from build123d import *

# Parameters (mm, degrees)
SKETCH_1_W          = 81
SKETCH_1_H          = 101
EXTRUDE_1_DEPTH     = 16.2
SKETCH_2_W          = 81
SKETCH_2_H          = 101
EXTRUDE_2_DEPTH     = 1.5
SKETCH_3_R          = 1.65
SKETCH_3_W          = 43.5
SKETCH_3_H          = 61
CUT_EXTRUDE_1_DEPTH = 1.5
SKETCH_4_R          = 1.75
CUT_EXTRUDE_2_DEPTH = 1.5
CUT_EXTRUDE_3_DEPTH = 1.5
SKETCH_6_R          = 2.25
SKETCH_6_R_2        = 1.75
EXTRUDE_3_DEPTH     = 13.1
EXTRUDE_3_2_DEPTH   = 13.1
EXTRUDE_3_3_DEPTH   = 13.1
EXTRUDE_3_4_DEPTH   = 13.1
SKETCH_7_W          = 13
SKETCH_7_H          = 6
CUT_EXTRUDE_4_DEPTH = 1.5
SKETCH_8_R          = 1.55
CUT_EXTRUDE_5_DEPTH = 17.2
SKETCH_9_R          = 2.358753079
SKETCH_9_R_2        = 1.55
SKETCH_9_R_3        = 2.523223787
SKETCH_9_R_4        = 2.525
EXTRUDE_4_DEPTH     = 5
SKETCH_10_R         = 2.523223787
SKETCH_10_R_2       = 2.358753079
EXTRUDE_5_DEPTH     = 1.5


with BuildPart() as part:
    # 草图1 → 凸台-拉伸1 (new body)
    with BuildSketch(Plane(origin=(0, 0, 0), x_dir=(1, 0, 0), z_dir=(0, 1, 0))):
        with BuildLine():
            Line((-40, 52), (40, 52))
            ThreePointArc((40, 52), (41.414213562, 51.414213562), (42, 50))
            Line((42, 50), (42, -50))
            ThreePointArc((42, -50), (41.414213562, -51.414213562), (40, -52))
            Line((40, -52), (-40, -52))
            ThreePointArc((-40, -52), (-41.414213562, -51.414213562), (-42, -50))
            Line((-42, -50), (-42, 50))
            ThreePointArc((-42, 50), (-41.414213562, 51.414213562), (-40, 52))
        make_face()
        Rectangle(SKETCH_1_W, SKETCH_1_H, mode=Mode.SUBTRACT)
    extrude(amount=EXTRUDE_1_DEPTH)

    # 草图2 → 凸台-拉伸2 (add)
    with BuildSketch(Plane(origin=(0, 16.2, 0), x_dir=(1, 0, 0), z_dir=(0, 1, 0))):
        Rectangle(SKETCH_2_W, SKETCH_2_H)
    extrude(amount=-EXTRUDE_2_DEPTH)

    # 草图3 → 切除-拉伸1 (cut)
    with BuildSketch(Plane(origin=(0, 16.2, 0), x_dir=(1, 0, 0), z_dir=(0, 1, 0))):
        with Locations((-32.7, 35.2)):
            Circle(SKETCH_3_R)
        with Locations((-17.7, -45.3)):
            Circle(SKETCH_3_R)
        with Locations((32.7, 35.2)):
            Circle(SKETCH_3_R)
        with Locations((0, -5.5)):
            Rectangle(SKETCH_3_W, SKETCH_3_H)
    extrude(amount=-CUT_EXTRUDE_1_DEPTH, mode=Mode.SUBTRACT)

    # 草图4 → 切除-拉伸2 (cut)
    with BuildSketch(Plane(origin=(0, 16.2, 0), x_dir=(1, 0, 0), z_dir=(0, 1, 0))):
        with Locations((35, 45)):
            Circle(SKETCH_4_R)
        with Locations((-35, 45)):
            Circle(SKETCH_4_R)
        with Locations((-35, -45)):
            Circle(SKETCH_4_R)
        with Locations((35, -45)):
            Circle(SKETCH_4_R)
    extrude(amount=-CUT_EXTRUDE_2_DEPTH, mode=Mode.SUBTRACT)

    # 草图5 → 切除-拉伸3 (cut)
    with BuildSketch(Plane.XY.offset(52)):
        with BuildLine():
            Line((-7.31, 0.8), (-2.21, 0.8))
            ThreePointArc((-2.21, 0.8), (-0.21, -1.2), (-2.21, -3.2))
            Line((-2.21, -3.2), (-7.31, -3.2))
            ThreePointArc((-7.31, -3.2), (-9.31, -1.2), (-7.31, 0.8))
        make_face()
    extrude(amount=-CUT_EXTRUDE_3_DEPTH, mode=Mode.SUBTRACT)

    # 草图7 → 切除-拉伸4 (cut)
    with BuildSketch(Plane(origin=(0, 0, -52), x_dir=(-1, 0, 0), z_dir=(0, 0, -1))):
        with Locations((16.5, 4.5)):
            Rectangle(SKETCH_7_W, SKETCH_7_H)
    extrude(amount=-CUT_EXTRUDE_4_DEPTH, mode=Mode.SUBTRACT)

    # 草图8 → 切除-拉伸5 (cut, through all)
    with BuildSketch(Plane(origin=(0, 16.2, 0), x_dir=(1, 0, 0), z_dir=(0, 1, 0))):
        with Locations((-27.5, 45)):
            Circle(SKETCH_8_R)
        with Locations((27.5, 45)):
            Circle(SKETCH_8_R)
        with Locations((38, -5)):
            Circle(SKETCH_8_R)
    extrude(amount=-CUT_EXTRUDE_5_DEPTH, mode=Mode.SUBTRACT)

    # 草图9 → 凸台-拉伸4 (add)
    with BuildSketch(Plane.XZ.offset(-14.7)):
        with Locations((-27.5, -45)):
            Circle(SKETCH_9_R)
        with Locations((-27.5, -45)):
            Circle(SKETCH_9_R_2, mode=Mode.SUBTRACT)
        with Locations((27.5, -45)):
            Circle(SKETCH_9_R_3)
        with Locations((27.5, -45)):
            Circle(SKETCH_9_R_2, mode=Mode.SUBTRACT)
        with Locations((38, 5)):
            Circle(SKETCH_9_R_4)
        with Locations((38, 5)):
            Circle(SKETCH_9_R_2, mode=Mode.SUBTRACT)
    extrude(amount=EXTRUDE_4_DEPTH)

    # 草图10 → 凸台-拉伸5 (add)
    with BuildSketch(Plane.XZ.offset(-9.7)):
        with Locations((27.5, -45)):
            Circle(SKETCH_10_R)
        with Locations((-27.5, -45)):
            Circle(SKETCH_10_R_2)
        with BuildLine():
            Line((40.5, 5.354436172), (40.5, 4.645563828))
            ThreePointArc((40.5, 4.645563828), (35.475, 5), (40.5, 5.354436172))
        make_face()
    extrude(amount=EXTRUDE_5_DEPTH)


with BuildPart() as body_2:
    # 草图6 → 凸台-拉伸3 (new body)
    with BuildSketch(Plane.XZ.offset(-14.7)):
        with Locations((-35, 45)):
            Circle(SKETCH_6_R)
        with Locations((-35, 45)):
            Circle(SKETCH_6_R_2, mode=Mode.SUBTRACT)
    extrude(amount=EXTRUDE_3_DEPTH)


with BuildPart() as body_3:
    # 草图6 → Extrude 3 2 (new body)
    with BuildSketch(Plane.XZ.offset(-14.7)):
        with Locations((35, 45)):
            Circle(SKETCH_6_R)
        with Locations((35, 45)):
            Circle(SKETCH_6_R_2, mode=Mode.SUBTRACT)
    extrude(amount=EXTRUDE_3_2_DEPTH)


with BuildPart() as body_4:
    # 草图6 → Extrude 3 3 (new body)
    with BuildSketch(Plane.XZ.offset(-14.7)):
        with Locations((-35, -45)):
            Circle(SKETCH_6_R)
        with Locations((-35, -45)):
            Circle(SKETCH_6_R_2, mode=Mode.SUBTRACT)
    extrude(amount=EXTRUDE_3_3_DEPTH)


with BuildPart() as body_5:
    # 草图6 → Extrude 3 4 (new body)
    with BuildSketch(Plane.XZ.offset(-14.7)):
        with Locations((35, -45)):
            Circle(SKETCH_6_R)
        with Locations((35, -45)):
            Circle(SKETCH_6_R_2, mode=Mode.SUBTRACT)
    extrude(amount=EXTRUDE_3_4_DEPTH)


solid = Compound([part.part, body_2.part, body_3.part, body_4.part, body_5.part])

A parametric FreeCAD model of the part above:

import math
import FreeCAD as App
import Part
import Sketcher
Q = App.Units.Quantity


def add_polygon(sketch, points):
    """Adds a closed chain of lines whose ends are joined by coincident constraints."""
    first, n = sketch.GeometryCount, len(points)
    for a, b in zip(points, points[1:] + points[:1]):
        sketch.addGeometry(Part.LineSegment(App.Vector(*a, 0), App.Vector(*b, 0)), False)
    for i in range(n):
        sketch.addConstraint(Sketcher.Constraint("Coincident", first + i, 2, first + (i + 1) % n, 1))

doc = App.newDocument("Part")
body = doc.addObject("PartDesign::Body", "Body")

# Sketch on XZ plane
sketch1 = body.newObject("Sketcher::SketchObject", "Sketch")
sketch1.AttachmentSupport = (doc.getObject("XZ_Plane"), [""])
sketch1.MapMode = "FlatFace"
sketch1.addGeometry(Part.LineSegment(App.Vector(40, -52, 0), App.Vector(-40, -52, 0)), False)  # 0
sketch1.addGeometry(Part.ArcOfCircle(Part.Circle(App.Vector(-40, -50, 0), App.Vector(0, 0, 1), 2), math.radians(-180), math.radians(-90)), False)  # 1
sketch1.addGeometry(Part.LineSegment(App.Vector(-42, -50, 0), App.Vector(-42, 50, 0)), False)  # 2
sketch1.addGeometry(Part.ArcOfCircle(Part.Circle(App.Vector(-40, 50, 0), App.Vector(0, 0, 1), 2), math.radians(90), math.radians(180)), False)  # 3
sketch1.addGeometry(Part.LineSegment(App.Vector(-40, 52, 0), App.Vector(40, 52, 0)), False)  # 4
sketch1.addGeometry(Part.ArcOfCircle(Part.Circle(App.Vector(40, 50, 0), App.Vector(0, 0, 1), 2), math.radians(0), math.radians(90)), False)  # 5
sketch1.addGeometry(Part.LineSegment(App.Vector(42, 50, 0), App.Vector(42, -50, 0)), False)  # 6
sketch1.addGeometry(Part.ArcOfCircle(Part.Circle(App.Vector(40, -50, 0), App.Vector(0, 0, 1), 2), math.radians(-90), math.radians(0)), False)  # 7
add_polygon(sketch1, [(-40.5, 50.5), (-40.5, -50.5), (40.5, -50.5), (40.5, 50.5)])  # lines 8-11
sketch1.addConstraint([
    Sketcher.Constraint("Tangent", 0, 2, 1, 2),
    Sketcher.Constraint("Tangent", 1, 1, 2, 1),
    Sketcher.Constraint("Tangent", 2, 2, 3, 2),
    Sketcher.Constraint("Tangent", 3, 1, 4, 1),
    Sketcher.Constraint("Tangent", 4, 2, 5, 2),
    Sketcher.Constraint("Tangent", 5, 1, 6, 1),
    Sketcher.Constraint("Tangent", 6, 2, 7, 2),
    Sketcher.Constraint("Tangent", 7, 1, 0, 1),
    Sketcher.Constraint("Horizontal", 0),
    Sketcher.Constraint("Vertical", 2),
    Sketcher.Constraint("Horizontal", 4),
    Sketcher.Constraint("Vertical", 6),
    Sketcher.Constraint("Vertical", 8),
    Sketcher.Constraint("Horizontal", 9),
    Sketcher.Constraint("Vertical", 10),
    Sketcher.Constraint("Horizontal", 11),
    Sketcher.Constraint("Equal", 1, 3),
    Sketcher.Constraint("Equal", 3, 5),
    Sketcher.Constraint("Equal", 5, 7),
    Sketcher.Constraint("Symmetric", 1, 3, 5, 3, -1, 1),
    Sketcher.Constraint("Symmetric", 8, 2, 10, 2, -1, 1),
    Sketcher.Constraint("Radius", 1, Q("2 mm")),
    Sketcher.Constraint("DistanceX", 0, 2, 0, 1, Q("80 mm")),
    Sketcher.Constraint("DistanceX", 9, 1, 9, 2, Q("81 mm")),
    Sketcher.Constraint("DistanceY", 2, 1, 2, 2, Q("100 mm")),
    Sketcher.Constraint("DistanceY", 8, 2, 8, 1, Q("101 mm")),
])
pad1 = body.newObject("PartDesign::Pad", "Pad")
pad1.Profile = sketch1
pad1.Length = 16.2
pad1.Reversed = True

# Sketch on XZ plane
sketch2 = body.newObject("Sketcher::SketchObject", "Sketch001")
sketch2.AttachmentSupport = (doc.getObject("XZ_Plane"), [""])
sketch2.MapMode = "FlatFace"
sketch2.AttachmentOffset = App.Placement(App.Vector(0, 0, -16.2), App.Rotation())
add_polygon(sketch2, [(-40, -50), (-40, 50), (40, 50), (40, -50)])  # lines 0-3
sketch2.addConstraint([
    Sketcher.Constraint("Vertical", 0),
    Sketcher.Constraint("Horizontal", 1),
    Sketcher.Constraint("Vertical", 2),
    Sketcher.Constraint("Horizontal", 3),
    Sketcher.Constraint("Symmetric", 0, 2, 2, 2, -1, 1),
    Sketcher.Constraint("DistanceX", 1, 1, 1, 2, Q("81 mm")),
    Sketcher.Constraint("DistanceY", 0, 1, 0, 2, Q("101 mm")),
])
pad2 = body.newObject("PartDesign::Pad", "Pad001")
pad2.Profile = sketch2
pad2.Length = 1.5

# Sketch on XZ plane
sketch3 = body.newObject("Sketcher::SketchObject", "Sketch002")
sketch3.AttachmentSupport = (doc.getObject("XZ_Plane"), [""])
sketch3.MapMode = "FlatFace"
sketch3.AttachmentOffset = App.Placement(App.Vector(0, 0, -16.2), App.Rotation())
sketch3.addGeometry(Part.Circle(App.Vector(-32.7, -35.2, 0), App.Vector(0, 0, 1), 1.6), False)  # 0
sketch3.addGeometry(Part.Circle(App.Vector(-17.7, 45.3, 0), App.Vector(0, 0, 1), 1.6), False)  # 1
sketch3.addGeometry(Part.Circle(App.Vector(32.7, -35.2, 0), App.Vector(0, 0, 1), 1.6), False)  # 2
add_polygon(sketch3, [(-21.8, -25), (-21.8, 36), (21.8, 36), (21.8, -25)])  # lines 3-6
sketch3.addConstraint([
    Sketcher.Constraint("Vertical", 3),
    Sketcher.Constraint("Horizontal", 4),
    Sketcher.Constraint("Vertical", 5),
    Sketcher.Constraint("Horizontal", 6),
    Sketcher.Constraint("Equal", 0, 1),
    Sketcher.Constraint("Equal", 1, 2),
    Sketcher.Constraint("Symmetric", 0, 3, 2, 3, -2),
    Sketcher.Constraint("Diameter", 0, Q("3.3 mm")),
    Sketcher.Constraint("DistanceY", 3, 1, 3, 2, Q("61 mm")),
    Sketcher.Constraint("DistanceX", 4, 1, 4, 2, Q("43.5 mm")),
    Sketcher.Constraint("DistanceY", -1, 1, 3, 2, Q("36 mm")),
    Sketcher.Constraint("DistanceX", 0, 3, 1, 3, Q("15 mm")),
    Sketcher.Constraint("DistanceX", 0, 3, -1, 1, Q("32.7 mm")),
    Sketcher.Constraint("DistanceY", 0, 3, -1, 1, Q("35.2 mm")),
    Sketcher.Constraint("DistanceY", -1, 1, 1, 3, Q("45.3 mm")),
    Sketcher.Constraint("DistanceX", 3, 2, -1, 1, Q("21.75 mm")),
])
pocket1 = body.newObject("PartDesign::Pocket", "Pocket")
pocket1.Profile = sketch3
pocket1.Length = 1.5
pocket1.Reversed = True

# Sketch on XZ plane
sketch4 = body.newObject("Sketcher::SketchObject", "Sketch003")
sketch4.AttachmentSupport = (doc.getObject("XZ_Plane"), [""])
sketch4.MapMode = "FlatFace"
sketch4.AttachmentOffset = App.Placement(App.Vector(0, 0, -16.2), App.Rotation())
sketch4.addGeometry([
    Part.Circle(App.Vector(35, -45, 0), App.Vector(0, 0, 1), 1.8),
    Part.Circle(App.Vector(-35, -45, 0), App.Vector(0, 0, 1), 1.8),
    Part.Circle(App.Vector(-35, 45, 0), App.Vector(0, 0, 1), 1.8),
    Part.Circle(App.Vector(35, 45, 0), App.Vector(0, 0, 1), 1.8),
], False)
sketch4.addConstraint([
    Sketcher.Constraint("Equal", 0, 1),
    Sketcher.Constraint("Equal", 1, 2),
    Sketcher.Constraint("Equal", 2, 3),
    Sketcher.Constraint("Symmetric", 0, 3, 2, 3, -1, 1),
    Sketcher.Constraint("Symmetric", 1, 3, 3, 3, -1, 1),
    Sketcher.Constraint("Symmetric", 0, 3, 1, 3, -2),
    Sketcher.Constraint("Diameter", 0, Q("3.5 mm")),
    Sketcher.Constraint("DistanceX", -1, 1, 0, 3, Q("35 mm")),
    Sketcher.Constraint("DistanceY", 0, 3, -1, 1, Q("45 mm")),
])
pocket2 = body.newObject("PartDesign::Pocket", "Pocket001")
pocket2.Profile = sketch4
pocket2.Length = 1.5
pocket2.Reversed = True

# Sketch on XY plane
sketch5 = body.newObject("Sketcher::SketchObject", "Sketch004")
sketch5.AttachmentSupport = (doc.getObject("XY_Plane"), [""])
sketch5.MapMode = "FlatFace"
sketch5.AttachmentOffset = App.Placement(App.Vector(0, 0, 52), App.Rotation())
sketch5.addGeometry([
    Part.LineSegment(App.Vector(-2.2, 0.8, 0), App.Vector(-7.3, 0.8, 0)),
    Part.ArcOfCircle(Part.Circle(App.Vector(-7.3, -1.2, 0), App.Vector(0, 0, 1), 2), math.radians(90), math.radians(270)),
    Part.LineSegment(App.Vector(-7.3, -3.2, 0), App.Vector(-2.2, -3.2, 0)),
    Part.ArcOfCircle(Part.Circle(App.Vector(-2.2, -1.2, 0), App.Vector(0, 0, 1), 2), math.radians(-90), math.radians(90)),
], False)
sketch5.addConstraint([
    Sketcher.Constraint("Tangent", 0, 2, 1, 1),
    Sketcher.Constraint("Tangent", 1, 2, 2, 1),
    Sketcher.Constraint("Tangent", 2, 2, 3, 1),
    Sketcher.Constraint("Tangent", 3, 2, 0, 1),
    Sketcher.Constraint("Horizontal", 0),
    Sketcher.Constraint("Horizontal", 2),
    Sketcher.Constraint("Radius", 1, Q("2 mm")),
    Sketcher.Constraint("DistanceX", 0, 2, 0, 1, Q("5.1 mm")),
    Sketcher.Constraint("DistanceY", 1, 3, -1, 1, Q("1.2 mm")),
    Sketcher.Constraint("DistanceX", 1, 3, -1, 1, Q("7.31 mm")),
])
pocket3 = body.newObject("PartDesign::Pocket", "Pocket002")
pocket3.Profile = sketch5
pocket3.Length = 1.5

# Sketch on XY plane
sketch6 = body.newObject("Sketcher::SketchObject", "Sketch005")
sketch6.AttachmentSupport = (doc.getObject("XY_Plane"), [""])
sketch6.MapMode = "FlatFace"
sketch6.AttachmentOffset = App.Placement(App.Vector(0, 0, -52), App.Rotation())
add_polygon(sketch6, [(-10, 8), (-10, 2), (-23, 2), (-23, 8)])  # lines 0-3
sketch6.addConstraint([
    Sketcher.Constraint("Vertical", 0),
    Sketcher.Constraint("Horizontal", 1),
    Sketcher.Constraint("Vertical", 2),
    Sketcher.Constraint("Horizontal", 3),
    Sketcher.Constraint("DistanceX", 1, 2, 1, 1, Q("13 mm")),
    Sketcher.Constraint("DistanceY", 0, 2, 0, 1, Q("6 mm")),
    Sketcher.Constraint("DistanceX", 0, 2, -1, 1, Q("10 mm")),
    Sketcher.Constraint("DistanceY", -1, 1, 0, 2, Q("1.5 mm")),
])
pocket4 = body.newObject("PartDesign::Pocket", "Pocket003")
pocket4.Profile = sketch6
pocket4.Length = 1.5
pocket4.Reversed = True

# Sketch on XZ plane
sketch7 = body.newObject("Sketcher::SketchObject", "Sketch006")
sketch7.AttachmentSupport = (doc.getObject("XZ_Plane"), [""])
sketch7.MapMode = "FlatFace"
sketch7.AttachmentOffset = App.Placement(App.Vector(0, 0, -16.2), App.Rotation())
sketch7.addGeometry([
    Part.Circle(App.Vector(-27.5, -45, 0), App.Vector(0, 0, 1), 1.6),
    Part.Circle(App.Vector(27.5, -45, 0), App.Vector(0, 0, 1), 1.6),
    Part.Circle(App.Vector(38, 5, 0), App.Vector(0, 0, 1), 1.6),
], False)
sketch7.addConstraint([
    Sketcher.Constraint("Equal", 0, 1),
    Sketcher.Constraint("Equal", 1, 2),
    Sketcher.Constraint("Symmetric", 0, 3, 1, 3, -2),
    Sketcher.Constraint("Diameter", 0, Q("3.1 mm")),
    Sketcher.Constraint("DistanceY", 0, 3, -1, 1, Q("45 mm")),
    Sketcher.Constraint("DistanceX", -1, 1, 2, 3, Q("38 mm")),
    Sketcher.Constraint("DistanceY", -1, 1, 2, 3, Q("5 mm")),
    Sketcher.Constraint("DistanceX", 0, 3, 1, 3, Q("55 mm")),
])
pocket5 = body.newObject("PartDesign::Pocket", "Pocket004")
pocket5.Profile = sketch7
pocket5.Type = "ThroughAll"
pocket5.Reversed = True

# Sketch on XZ plane
sketch8 = body.newObject("Sketcher::SketchObject", "Sketch007")
sketch8.AttachmentSupport = (doc.getObject("XZ_Plane"), [""])
sketch8.MapMode = "FlatFace"
sketch8.AttachmentOffset = App.Placement(App.Vector(0, 0, -14.7), App.Rotation())
sketch8.addGeometry([
    Part.Circle(App.Vector(-27.5, -45, 0), App.Vector(0, 0, 1), 2.4),  # 0
    Part.Circle(App.Vector(-27.5, -45, 0), App.Vector(0, 0, 1), 1.6),  # 1
    Part.Circle(App.Vector(27.5, -45, 0), App.Vector(0, 0, 1), 2.5),  # 2
    Part.Circle(App.Vector(27.5, -45, 0), App.Vector(0, 0, 1), 1.6),  # 3
    Part.Circle(App.Vector(38, 5, 0), App.Vector(0, 0, 1), 2.5),  # 4
    Part.Circle(App.Vector(38, 5, 0), App.Vector(0, 0, 1), 1.6),  # 5
], False)
sketch8.addConstraint([
    Sketcher.Constraint("Coincident", 1, 3, 0, 3),
    Sketcher.Constraint("Coincident", 3, 3, 2, 3),
    Sketcher.Constraint("Coincident", 5, 3, 4, 3),
    Sketcher.Constraint("Equal", 1, 3),
    Sketcher.Constraint("Equal", 3, 5),
    Sketcher.Constraint("Symmetric", 0, 3, 2, 3, -2),
    Sketcher.Constraint("Diameter", 1, Q("3.1 mm")),
    Sketcher.Constraint("Diameter", 4, Q("5.05 mm")),
    Sketcher.Constraint("DistanceY", 0, 3, -1, 1, Q("45 mm")),
    Sketcher.Constraint("DistanceX", -1, 1, 4, 3, Q("38 mm")),
    Sketcher.Constraint("DistanceY", -1, 1, 4, 3, Q("5 mm")),
    Sketcher.Constraint("DistanceX", 0, 3, 2, 3, Q("55 mm")),
    Sketcher.Constraint("Diameter", 0, Q("4.717506 mm")),
    Sketcher.Constraint("Diameter", 2, Q("5.046448 mm")),
])
pad3 = body.newObject("PartDesign::Pad", "Pad002")
pad3.Profile = sketch8
pad3.Length = 5

# Sketch on XZ plane
sketch9 = body.newObject("Sketcher::SketchObject", "Sketch008")
sketch9.AttachmentSupport = (doc.getObject("XZ_Plane"), [""])
sketch9.MapMode = "FlatFace"
sketch9.AttachmentOffset = App.Placement(App.Vector(0, 0, -9.7), App.Rotation())
sketch9.addGeometry([
    Part.Circle(App.Vector(27.5, -45, 0), App.Vector(0, 0, 1), 2.5),
    Part.Circle(App.Vector(-27.5, -45, 0), App.Vector(0, 0, 1), 2.4),
    Part.LineSegment(App.Vector(40.5, 4.6, 0), App.Vector(40.5, 5.4, 0)),
    Part.ArcOfCircle(Part.Circle(App.Vector(38, 5, 0), App.Vector(0, 0, 1), 2.5), math.radians(8), math.radians(352)),
], False)
sketch9.addConstraint([
    Sketcher.Constraint("Coincident", 2, 1, 3, 2),
    Sketcher.Constraint("Coincident", 3, 1, 2, 2),
    Sketcher.Constraint("Vertical", 2),
    Sketcher.Constraint("Symmetric", 0, 3, 1, 3, -2),
    Sketcher.Constraint("DistanceY", 0, 3, -1, 1, Q("45 mm")),
    Sketcher.Constraint("DistanceX", -1, 1, 3, 3, Q("38 mm")),
    Sketcher.Constraint("DistanceY", -1, 1, 3, 3, Q("5 mm")),
    Sketcher.Constraint("Radius", 3, Q("2.525 mm")),
    Sketcher.Constraint("DistanceX", 1, 3, 0, 3, Q("55 mm")),
    Sketcher.Constraint("DistanceX", 0, 3, 2, 1, Q("13 mm")),
    Sketcher.Constraint("Diameter", 0, Q("5.046448 mm")),
    Sketcher.Constraint("Diameter", 1, Q("4.717506 mm")),
])
pad4 = body.newObject("PartDesign::Pad", "Pad003")
pad4.Profile = sketch9
pad4.Length = 1.5
body2 = doc.addObject("PartDesign::Body", "Body001")

# Sketch on XZ plane
sketch10 = body2.newObject("Sketcher::SketchObject", "Sketch009")
sketch10.AttachmentSupport = (doc.getObject("XZ_Plane001"), [""])
sketch10.MapMode = "FlatFace"
sketch10.AttachmentOffset = App.Placement(App.Vector(0, 0, -14.7), App.Rotation())
sketch10.addGeometry([
    Part.Circle(App.Vector(-35, 45, 0), App.Vector(0, 0, 1), 2.2),
    Part.Circle(App.Vector(-35, 45, 0), App.Vector(0, 0, 1), 1.8),
], False)
sketch10.addConstraint([
    Sketcher.Constraint("Coincident", 1, 3, 0, 3),
    Sketcher.Constraint("Diameter", 0, Q("4.5 mm")),
    Sketcher.Constraint("Diameter", 1, Q("3.5 mm")),
    Sketcher.Constraint("DistanceX", 0, 3, -1, 1, Q("35 mm")),
    Sketcher.Constraint("DistanceY", -1, 1, 0, 3, Q("45 mm")),
])
pad5 = body2.newObject("PartDesign::Pad", "Pad004")
pad5.Profile = sketch10
pad5.Length = 13.1
body3 = doc.addObject("PartDesign::Body", "Body002")

# Sketch on XZ plane
sketch11 = body3.newObject("Sketcher::SketchObject", "Sketch010")
sketch11.AttachmentSupport = (doc.getObject("XZ_Plane002"), [""])
sketch11.MapMode = "FlatFace"
sketch11.AttachmentOffset = App.Placement(App.Vector(0, 0, -14.7), App.Rotation())
sketch11.addGeometry([
    Part.Circle(App.Vector(35, 45, 0), App.Vector(0, 0, 1), 2.2),
    Part.Circle(App.Vector(35, 45, 0), App.Vector(0, 0, 1), 1.8),
], False)
sketch11.addConstraint([
    Sketcher.Constraint("Coincident", 1, 3, 0, 3),
    Sketcher.Constraint("Diameter", 0, Q("4.5 mm")),
    Sketcher.Constraint("Diameter", 1, Q("3.5 mm")),
    Sketcher.Constraint("DistanceX", -1, 1, 0, 3, Q("35 mm")),
    Sketcher.Constraint("DistanceY", -1, 1, 0, 3, Q("45 mm")),
])
pad6 = body3.newObject("PartDesign::Pad", "Pad005")
pad6.Profile = sketch11
pad6.Length = 13.1
body4 = doc.addObject("PartDesign::Body", "Body003")

# Sketch on XZ plane
sketch12 = body4.newObject("Sketcher::SketchObject", "Sketch011")
sketch12.AttachmentSupport = (doc.getObject("XZ_Plane003"), [""])
sketch12.MapMode = "FlatFace"
sketch12.AttachmentOffset = App.Placement(App.Vector(0, 0, -14.7), App.Rotation())
sketch12.addGeometry([
    Part.Circle(App.Vector(-35, -45, 0), App.Vector(0, 0, 1), 2.2),
    Part.Circle(App.Vector(-35, -45, 0), App.Vector(0, 0, 1), 1.8),
], False)
sketch12.addConstraint([
    Sketcher.Constraint("Coincident", 1, 3, 0, 3),
    Sketcher.Constraint("Diameter", 0, Q("4.5 mm")),
    Sketcher.Constraint("Diameter", 1, Q("3.5 mm")),
    Sketcher.Constraint("DistanceX", 0, 3, -1, 1, Q("35 mm")),
    Sketcher.Constraint("DistanceY", 0, 3, -1, 1, Q("45 mm")),
])
pad7 = body4.newObject("PartDesign::Pad", "Pad006")
pad7.Profile = sketch12
pad7.Length = 13.1
body5 = doc.addObject("PartDesign::Body", "Body004")

# Sketch on XZ plane
sketch13 = body5.newObject("Sketcher::SketchObject", "Sketch012")
sketch13.AttachmentSupport = (doc.getObject("XZ_Plane004"), [""])
sketch13.MapMode = "FlatFace"
sketch13.AttachmentOffset = App.Placement(App.Vector(0, 0, -14.7), App.Rotation())
sketch13.addGeometry([
    Part.Circle(App.Vector(35, -45, 0), App.Vector(0, 0, 1), 2.2),
    Part.Circle(App.Vector(35, -45, 0), App.Vector(0, 0, 1), 1.8),
], False)
sketch13.addConstraint([
    Sketcher.Constraint("Coincident", 1, 3, 0, 3),
    Sketcher.Constraint("Diameter", 0, Q("4.5 mm")),
    Sketcher.Constraint("Diameter", 1, Q("3.5 mm")),
    Sketcher.Constraint("DistanceX", -1, 1, 0, 3, Q("35 mm")),
    Sketcher.Constraint("DistanceY", 0, 3, -1, 1, Q("45 mm")),
])
pad8 = body5.newObject("PartDesign::Pad", "Pad007")
pad8.Profile = sketch13
pad8.Length = 13.1

doc.recompute()
